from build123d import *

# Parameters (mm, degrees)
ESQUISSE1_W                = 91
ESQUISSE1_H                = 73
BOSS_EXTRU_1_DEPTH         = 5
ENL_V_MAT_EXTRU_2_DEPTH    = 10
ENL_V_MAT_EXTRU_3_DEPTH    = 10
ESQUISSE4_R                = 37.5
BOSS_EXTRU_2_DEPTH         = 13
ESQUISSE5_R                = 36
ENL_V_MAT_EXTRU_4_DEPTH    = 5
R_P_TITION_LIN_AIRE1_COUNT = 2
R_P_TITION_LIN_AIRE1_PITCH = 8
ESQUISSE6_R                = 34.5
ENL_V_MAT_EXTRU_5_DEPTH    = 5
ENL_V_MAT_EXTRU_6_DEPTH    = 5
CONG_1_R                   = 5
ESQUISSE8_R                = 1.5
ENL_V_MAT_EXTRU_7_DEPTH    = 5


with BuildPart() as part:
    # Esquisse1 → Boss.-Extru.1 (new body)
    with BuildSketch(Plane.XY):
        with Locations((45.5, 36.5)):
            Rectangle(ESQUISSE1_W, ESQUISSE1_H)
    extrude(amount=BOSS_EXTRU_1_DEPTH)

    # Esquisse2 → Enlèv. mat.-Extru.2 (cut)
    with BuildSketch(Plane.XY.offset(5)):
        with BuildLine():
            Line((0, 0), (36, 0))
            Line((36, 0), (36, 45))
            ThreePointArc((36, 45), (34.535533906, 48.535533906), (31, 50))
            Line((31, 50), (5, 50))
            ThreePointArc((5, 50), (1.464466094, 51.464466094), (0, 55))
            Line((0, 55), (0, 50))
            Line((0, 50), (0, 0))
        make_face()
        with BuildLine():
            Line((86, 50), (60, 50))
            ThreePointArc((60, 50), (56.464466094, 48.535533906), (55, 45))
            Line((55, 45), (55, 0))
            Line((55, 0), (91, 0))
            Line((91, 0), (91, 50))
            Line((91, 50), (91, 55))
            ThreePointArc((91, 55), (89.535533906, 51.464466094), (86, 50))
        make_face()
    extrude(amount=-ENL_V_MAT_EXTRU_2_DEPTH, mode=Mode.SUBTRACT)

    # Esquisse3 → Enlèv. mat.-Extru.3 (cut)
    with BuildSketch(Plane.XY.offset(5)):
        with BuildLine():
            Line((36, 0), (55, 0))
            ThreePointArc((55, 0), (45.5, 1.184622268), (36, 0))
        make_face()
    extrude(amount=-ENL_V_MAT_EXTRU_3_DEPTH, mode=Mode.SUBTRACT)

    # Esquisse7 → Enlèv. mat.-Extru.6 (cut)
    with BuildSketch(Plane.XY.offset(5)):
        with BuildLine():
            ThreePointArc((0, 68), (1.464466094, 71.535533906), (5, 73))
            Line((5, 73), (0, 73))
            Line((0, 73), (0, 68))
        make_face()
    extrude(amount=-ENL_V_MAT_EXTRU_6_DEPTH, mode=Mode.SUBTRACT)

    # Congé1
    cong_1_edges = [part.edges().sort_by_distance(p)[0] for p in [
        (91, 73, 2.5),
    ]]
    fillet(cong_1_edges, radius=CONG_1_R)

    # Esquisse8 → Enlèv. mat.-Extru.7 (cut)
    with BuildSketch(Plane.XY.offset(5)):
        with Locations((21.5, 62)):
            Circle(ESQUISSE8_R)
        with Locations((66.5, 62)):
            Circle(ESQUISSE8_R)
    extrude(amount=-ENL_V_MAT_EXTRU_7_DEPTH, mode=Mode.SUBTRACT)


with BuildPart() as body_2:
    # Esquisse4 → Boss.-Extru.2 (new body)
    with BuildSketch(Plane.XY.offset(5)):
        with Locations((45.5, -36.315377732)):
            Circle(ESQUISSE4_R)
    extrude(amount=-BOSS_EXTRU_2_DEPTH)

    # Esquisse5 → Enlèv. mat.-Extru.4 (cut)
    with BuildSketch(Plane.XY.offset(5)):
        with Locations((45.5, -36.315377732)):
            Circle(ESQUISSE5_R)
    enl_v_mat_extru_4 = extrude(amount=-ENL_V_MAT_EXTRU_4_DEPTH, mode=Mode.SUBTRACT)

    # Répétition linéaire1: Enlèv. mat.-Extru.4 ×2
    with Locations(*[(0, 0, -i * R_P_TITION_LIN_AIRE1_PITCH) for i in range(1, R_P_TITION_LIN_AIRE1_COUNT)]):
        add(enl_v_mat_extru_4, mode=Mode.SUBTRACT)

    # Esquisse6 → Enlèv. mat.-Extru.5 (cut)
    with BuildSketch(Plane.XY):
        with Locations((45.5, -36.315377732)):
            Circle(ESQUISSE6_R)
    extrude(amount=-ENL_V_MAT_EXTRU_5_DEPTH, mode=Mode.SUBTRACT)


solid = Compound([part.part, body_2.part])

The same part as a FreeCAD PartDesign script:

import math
import FreeCAD as App
import Part
import Sketcher
from FreeCAD import Vector
Q = App.Units.Quantity


def edges_at(feature, points):
    """Names of the edges that pass closest to the given points."""
    edges = feature.Shape.Edges
    near = lambda p: min(range(len(edges)), key=lambda i: edges[i].distToShape(Part.Vertex(*p))[0])
    return sorted({f"Edge{near(p) + 1}" for p in points})


def add_polygon(sketch, points):
    """Adds a closed chain of lines whose ends are joined by coincident constraints."""
    first, n = sketch.GeometryCount, len(points)
    for a, b in zip(points, points[1:] + points[:1]):
        sketch.addGeometry(Part.LineSegment(App.Vector(*a, 0), App.Vector(*b, 0)), False)
    for i in range(n):
        sketch.addConstraint(Sketcher.Constraint("Coincident", first + i, 2, first + (i + 1) % n, 1))

doc = App.newDocument("Part")
body = doc.addObject("PartDesign::Body", "Body")

# Sketch on XY plane
sketch1 = body.newObject("Sketcher::SketchObject", "Sketch")
sketch1.AttachmentSupport = (doc.getObject("XY_Plane"), [""])
sketch1.MapMode = "FlatFace"
add_polygon(sketch1, [(0, 73), (0, 0), (91, 0), (91, 73)])  # lines 0-3
sketch1.addConstraint(Sketcher.Constraint("Vertical", 0))
sketch1.addConstraint(Sketcher.Constraint("Horizontal", 1))
sketch1.addConstraint(Sketcher.Constraint("Vertical", 2))
sketch1.addConstraint(Sketcher.Constraint("Horizontal", 3))
sketch1.addConstraint(Sketcher.Constraint("Coincident", 0, 2, -1, 1))
sketch1.addConstraint(Sketcher.Constraint("DistanceX", 1, 1, 1, 2, Q("91 mm")))
sketch1.addConstraint(Sketcher.Constraint("DistanceY", 0, 2, 0, 1, Q("73 mm")))
pad1 = body.newObject("PartDesign::Pad", "Pad")
pad1.Profile = sketch1
pad1.Length = 5

# Sketch on XY plane
sketch2 = body.newObject("Sketcher::SketchObject", "Sketch001")
sketch2.AttachmentSupport = (doc.getObject("XY_Plane"), [""])
sketch2.MapMode = "FlatFace"
sketch2.AttachmentOffset = App.Placement(Vector(0, 0, 5), App.Rotation())
sketch2.addGeometry(Part.LineSegment(Vector(0, 0, 0), Vector(36, 0, 0)), False)
sketch2.addGeometry(Part.LineSegment(Vector(36, 0, 0), Vector(36, 45, 0)), False)
sketch2.addGeometry(Part.ArcOfCircle(Part.Circle(Vector(31, 45, 0), Vector(0, 0, 1), 5), math.radians(0), math.radians(90)), False)
sketch2.addGeometry(Part.LineSegment(Vector(31, 50, 0), Vector(5, 50, 0)), False)
sketch2.addGeometry(Part.ArcOfCircle(Part.Circle(Vector(5, 55, 0), Vector(0, 0, 1), 5), math.radians(180), math.radians(270)), False)
sketch2.addGeometry(Part.LineSegment(Vector(0, 55, 0), Vector(0, 0, 0)), False)
sketch2.addGeometry(Part.LineSegment(Vector(86, 50, 0), Vector(60, 50, 0)), False)
sketch2.addGeometry(Part.ArcOfCircle(Part.Circle(Vector(60, 45, 0), Vector(0, 0, 1), 5), math.radians(90), math.radians(180)), False)
sketch2.addGeometry(Part.LineSegment(Vector(55, 45, 0), Vector(55, 0, 0)), False)
sketch2.addGeometry(Part.LineSegment(Vector(55, 0, 0), Vector(91, 0, 0)), False)
sketch2.addGeometry(Part.LineSegment(Vector(91, 0, 0), Vector(91, 55, 0)), False)
sketch2.addGeometry(Part.ArcOfCircle(Part.Circle(Vector(86, 55, 0), Vector(0, 0, 1), 5), math.radians(-90), math.radians(0)), False)
sketch2.addConstraint(Sketcher.Constraint("Coincident", 0, 2, 1, 1))
sketch2.addConstraint(Sketcher.Constraint("Tangent", 1, 2, 2, 1))
sketch2.addConstraint(Sketcher.Constraint("Tangent", 2, 2, 3, 1))
sketch2.addConstraint(Sketcher.Constraint("Tangent", 3, 2, 4, 2))
sketch2.addConstraint(Sketcher.Constraint("Tangent", 4, 1, 5, 1))
sketch2.addConstraint(Sketcher.Constraint("Coincident", 5, 2, 0, 1))
sketch2.addConstraint(Sketcher.Constraint("Tangent", 6, 2, 7, 1))
sketch2.addConstraint(Sketcher.Constraint("Tangent", 7, 2, 8, 1))
sketch2.addConstraint(Sketcher.Constraint("Coincident", 8, 2, 9, 1))
sketch2.addConstraint(Sketcher.Constraint("Coincident", 9, 2, 10, 1))
sketch2.addConstraint(Sketcher.Constraint("Tangent", 10, 2, 11, 2))
sketch2.addConstraint(Sketcher.Constraint("Tangent", 11, 1, 6, 1))
sketch2.addConstraint(Sketcher.Constraint("Horizontal", 0))
sketch2.addConstraint(Sketcher.Constraint("Vertical", 1))
sketch2.addConstraint(Sketcher.Constraint("Horizontal", 3))
sketch2.addConstraint(Sketcher.Constraint("Vertical", 5))
sketch2.addConstraint(Sketcher.Constraint("Horizontal", 6))
sketch2.addConstraint(Sketcher.Constraint("Vertical", 8))
sketch2.addConstraint(Sketcher.Constraint("Horizontal", 9))
sketch2.addConstraint(Sketcher.Constraint("Vertical", 10))
sketch2.addConstraint(Sketcher.Constraint("Coincident", 5, 2, -1, 1))
sketch2.addConstraint(Sketcher.Constraint("Equal", 2, 4))
sketch2.addConstraint(Sketcher.Constraint("Equal", 4, 7))
sketch2.addConstraint(Sketcher.Constraint("Equal", 7, 11))
sketch2.addConstraint(Sketcher.Constraint("PointOnObject", 8, 2, -1))
sketch2.addConstraint(Sketcher.Constraint("Horizontal", 2, 3, 7, 3))
sketch2.addConstraint(Sketcher.Constraint("Equal", 3, 6))
sketch2.addConstraint(Sketcher.Constraint("Radius", 2, Q("5 mm")))
sketch2.addConstraint(Sketcher.Constraint("DistanceX", 0, 1, 0, 2, Q("36 mm")))
sketch2.addConstraint(Sketcher.Constraint("DistanceY", 1, 1, 1, 2, Q("45 mm")))
sketch2.addConstraint(Sketcher.Constraint("DistanceX", -1, 1, 7, 3, Q("60 mm")))
pocket1 = body.newObject("PartDesign::Pocket", "Pocket")
pocket1.Profile = sketch2
pocket1.Length = 10

# Sketch on XY plane
sketch3 = body.newObject("Sketcher::SketchObject", "Sketch002")
sketch3.AttachmentSupport = (doc.getObject("XY_Plane"), [""])
sketch3.MapMode = "FlatFace"
sketch3.AttachmentOffset = App.Placement(Vector(0, 0, 5), App.Rotation())
sketch3.addGeometry(Part.LineSegment(Vector(36, 0, 0), Vector(55, 0, 0)), False)
sketch3.addGeometry(Part.ArcOfCircle(Part.Circle(Vector(46, -37, 0), Vector(0, 0, 1), 39), math.radians(76), math.radians(104)), False)
sketch3.addConstraint(Sketcher.Constraint("Coincident", 0, 1, 1, 2))
sketch3.addConstraint(Sketcher.Constraint("Coincident", 1, 1, 0, 2))
sketch3.addConstraint(Sketcher.Constraint("Horizontal", 0))
sketch3.addConstraint(Sketcher.Constraint("PointOnObject", 0, 1, -1))
sketch3.addConstraint(Sketcher.Constraint("DistanceX", 0, 1, 0, 2, Q("19 mm")))
sketch3.addConstraint(Sketcher.Constraint("DistanceX", -1, 1, 0, 1, Q("36 mm")))
sketch3.addConstraint(Sketcher.Constraint("DistanceY", 1, 3, -1, 1, Q("37.5 mm")))
pocket2 = body.newObject("PartDesign::Pocket", "Pocket001")
pocket2.Profile = sketch3
pocket2.Length = 10

# Sketch on XY plane
sketch4 = body.newObject("Sketcher::SketchObject", "Sketch003")
sketch4.AttachmentSupport = (doc.getObject("XY_Plane"), [""])
sketch4.MapMode = "FlatFace"
sketch4.AttachmentOffset = App.Placement(Vector(0, 0, 5), App.Rotation())
sketch4.addGeometry(Part.ArcOfCircle(Part.Circle(Vector(5, 68, 0), Vector(0, 0, 1), 5), math.radians(90), math.radians(180)), False)
sketch4.addGeometry(Part.LineSegment(Vector(5, 73, 0), Vector(0, 73, 0)), False)
sketch4.addGeometry(Part.LineSegment(Vector(0, 73, 0), Vector(0, 68, 0)), False)
sketch4.addConstraint(Sketcher.Constraint("Tangent", 0, 1, 1, 1))
sketch4.addConstraint(Sketcher.Constraint("Coincident", 1, 2, 2, 1))
sketch4.addConstraint(Sketcher.Constraint("Tangent", 2, 2, 0, 2))
sketch4.addConstraint(Sketcher.Constraint("Horizontal", 1))
sketch4.addConstraint(Sketcher.Constraint("Vertical", 2))
sketch4.addConstraint(Sketcher.Constraint("PointOnObject", 1, 2, -2))
sketch4.addConstraint(Sketcher.Constraint("Radius", 0, Q("5 mm")))
sketch4.addConstraint(Sketcher.Constraint("DistanceY", -1, 1, 0, 3, Q("68 mm")))
pocket3 = body.newObject("PartDesign::Pocket", "Pocket002")
pocket3.Profile = sketch4
pocket3.Length = 5
doc.recompute()

fillet = body.newObject("PartDesign::Fillet", "Fillet")
fillet.Base = (pocket3, edges_at(pocket3, [(91, 73, 2.5)]))
fillet.Radius = 5

# Sketch on XY plane
sketch5 = body.newObject("Sketcher::SketchObject", "Sketch004")
sketch5.AttachmentSupport = (doc.getObject("XY_Plane"), [""])
sketch5.MapMode = "FlatFace"
sketch5.AttachmentOffset = App.Placement(Vector(0, 0, 5), App.Rotation())
sketch5.addGeometry(Part.Circle(Vector(21.5, 62, 0), Vector(0, 0, 1), 1.5), False)
sketch5.addGeometry(Part.Circle(Vector(66.5, 62, 0), Vector(0, 0, 1), 1.5), False)
sketch5.addConstraint(Sketcher.Constraint("Equal", 0, 1))
sketch5.addConstraint(Sketcher.Constraint("Horizontal", 0, 3, 1, 3))
sketch5.addConstraint(Sketcher.Constraint("Diameter", 0, Q("3 mm")))
sketch5.addConstraint(Sketcher.Constraint("DistanceY", -1, 1, 0, 3, Q("62 mm")))
sketch5.addConstraint(Sketcher.Constraint("DistanceX", 0, 3, 1, 3, Q("45 mm")))
sketch5.addConstraint(Sketcher.Constraint("DistanceX", -1, 1, 0, 3, Q("21.5 mm")))
pocket4 = body.newObject("PartDesign::Pocket", "Pocket003")
pocket4.Profile = sketch5
pocket4.Length = 5
body2 = doc.addObject("PartDesign::Body", "Body001")

# Sketch on XY plane
sketch6 = body2.newObject("Sketcher::SketchObject", "Sketch005")
sketch6.AttachmentSupport = (doc.getObject("XY_Plane001"), [""])
sketch6.MapMode = "FlatFace"
sketch6.AttachmentOffset = App.Placement(Vector(0, 0, 5), App.Rotation())
sketch6.addGeometry(Part.Circle(Vector(46, -36, 0), Vector(0, 0, 1), 38), False)
sketch6.addConstraint(Sketcher.Constraint("Diameter", 0, Q("75 mm")))
sketch6.addConstraint(Sketcher.Constraint("DistanceX", -1, 1, 0, 3, Q("45.5 mm")))
sketch6.addConstraint(Sketcher.Constraint("DistanceY", 0, 3, -1, 1, Q("36.315378 mm")))
pad2 = body2.newObject("PartDesign::Pad", "Pad001")
pad2.Profile = sketch6
pad2.Length = 13
pad2.Reversed = True

# Sketch on XY plane
sketch7 = body2.newObject("Sketcher::SketchObject", "Sketch006")
sketch7.AttachmentSupport = (doc.getObject("XY_Plane001"), [""])
sketch7.MapMode = "FlatFace"
sketch7.AttachmentOffset = App.Placement(Vector(0, 0, 5), App.Rotation())
sketch7.addGeometry(Part.Circle(Vector(46, -36, 0), Vector(0, 0, 1), 36), False)
sketch7.addConstraint(Sketcher.Constraint("Diameter", 0, Q("72 mm")))
sketch7.addConstraint(Sketcher.Constraint("DistanceX", -1, 1, 0, 3, Q("45.5 mm")))
sketch7.addConstraint(Sketcher.Constraint("DistanceY", 0, 3, -1, 1, Q("36.315378 mm")))
pocket5 = body2.newObject("PartDesign::Pocket", "Pocket004")
pocket5.Profile = sketch7
pocket5.Length = 5
doc.recompute()

linearpattern = body2.newObject("PartDesign::LinearPattern", "LinearPattern")
linearpattern.Originals = [pocket5]
linearpattern.Direction = (doc.getObject("Z_Axis001"), [""])
linearpattern.Mode = "offset"
linearpattern.Offset = 8
linearpattern.Occurrences = 2
linearpattern.Reversed = True
body2.Tip = linearpattern

# Sketch on XY plane
sketch8 = body2.newObject("Sketcher::SketchObject", "Sketch007")
sketch8.AttachmentSupport = (doc.getObject("XY_Plane001"), [""])
sketch8.MapMode = "FlatFace"
sketch8.addGeometry(Part.Circle(Vector(46, -36, 0), Vector(0, 0, 1), 34), False)
sketch8.addConstraint(Sketcher.Constraint("Diameter", 0, Q("69 mm")))
sketch8.addConstraint(Sketcher.Constraint("DistanceX", -1, 1, 0, 3, Q("45.5 mm")))
sketch8.addConstraint(Sketcher.Constraint("DistanceY", 0, 3, -1, 1, Q("36.315378 mm")))
pocket6 = body2.newObject("PartDesign::Pocket", "Pocket005")
pocket6.Profile = sketch8
pocket6.Length = 5

doc.recompute()
